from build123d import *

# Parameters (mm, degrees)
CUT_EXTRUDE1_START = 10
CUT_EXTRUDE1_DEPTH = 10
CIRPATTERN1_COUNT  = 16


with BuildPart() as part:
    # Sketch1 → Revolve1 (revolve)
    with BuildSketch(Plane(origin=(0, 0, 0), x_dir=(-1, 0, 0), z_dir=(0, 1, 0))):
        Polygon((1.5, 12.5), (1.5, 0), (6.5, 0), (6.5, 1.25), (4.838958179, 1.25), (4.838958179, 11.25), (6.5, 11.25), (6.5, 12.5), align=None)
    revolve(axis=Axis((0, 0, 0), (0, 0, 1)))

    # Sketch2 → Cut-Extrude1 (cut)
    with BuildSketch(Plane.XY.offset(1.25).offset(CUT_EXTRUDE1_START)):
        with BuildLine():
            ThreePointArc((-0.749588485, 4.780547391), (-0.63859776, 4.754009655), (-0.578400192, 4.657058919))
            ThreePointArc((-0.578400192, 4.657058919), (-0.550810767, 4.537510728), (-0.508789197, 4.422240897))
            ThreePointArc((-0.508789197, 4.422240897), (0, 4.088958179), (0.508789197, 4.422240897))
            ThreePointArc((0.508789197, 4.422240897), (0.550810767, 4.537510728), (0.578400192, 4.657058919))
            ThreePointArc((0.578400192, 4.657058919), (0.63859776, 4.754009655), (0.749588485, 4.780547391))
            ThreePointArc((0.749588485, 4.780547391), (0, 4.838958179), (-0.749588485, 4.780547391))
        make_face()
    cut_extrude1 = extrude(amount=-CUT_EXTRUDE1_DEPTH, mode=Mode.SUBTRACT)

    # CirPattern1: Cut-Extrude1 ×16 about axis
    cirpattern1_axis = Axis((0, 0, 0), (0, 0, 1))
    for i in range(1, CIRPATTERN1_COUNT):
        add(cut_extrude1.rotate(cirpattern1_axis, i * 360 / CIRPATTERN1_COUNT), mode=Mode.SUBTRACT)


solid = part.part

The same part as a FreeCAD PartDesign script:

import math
import FreeCAD as App
import Part
import Sketcher

V = App.Vector
Q = App.Units.Quantity


def add_polygon(sketch, points):
    """Adds a closed chain of lines whose ends are joined by coincident constraints."""
    first, n = sketch.GeometryCount, len(points)
    for a, b in zip(points, points[1:] + points[:1]):
        sketch.addGeometry(Part.LineSegment(App.Vector(*a, 0), App.Vector(*b, 0)), False)
    for i in range(n):
        sketch.addConstraint(Sketcher.Constraint("Coincident", first + i, 2, first + (i + 1) % n, 1))

doc = App.newDocument("Part")
body = doc.addObject("PartDesign::Body", "Body")

# Sketch on XZ plane
sketch1 = doc.addObject("Sketcher::SketchObject", "Sketch")
body.addObject(sketch1)
sketch1.AttachmentSupport = (doc.XZ_Plane, [""])
sketch1.MapMode = "FlatFace"
add_polygon(sketch1, [(-1.5, 12.5), (-1.5, 0), (-6.5, 0), (-6.5, 1.2), (-4.8, 1.2), (-4.8, 11.2), (-6.5, 11.2), (-6.5, 12.5)])  # lines 0-7
sketch1.addConstraint(Sketcher.Constraint("Vertical", 0))
sketch1.addConstraint(Sketcher.Constraint("Horizontal", 1))
sketch1.addConstraint(Sketcher.Constraint("Vertical", 2))
sketch1.addConstraint(Sketcher.Constraint("Horizontal", 3))
sketch1.addConstraint(Sketcher.Constraint("Vertical", 4))
sketch1.addConstraint(Sketcher.Constraint("Horizontal", 5))
sketch1.addConstraint(Sketcher.Constraint("Vertical", 6))
sketch1.addConstraint(Sketcher.Constraint("Horizontal", 7))
sketch1.addConstraint(Sketcher.Constraint("PointOnObject", 0, 2, -1))
sketch1.addConstraint(Sketcher.Constraint("Vertical", 2, 2, 5, 2))
sketch1.addConstraint(Sketcher.Constraint("Equal", 2, 6))
sketch1.addConstraint(Sketcher.Constraint("DistanceX", 1, 2, 1, 1, Q("5 mm")))
sketch1.addConstraint(Sketcher.Constraint("DistanceY", 4, 1, 4, 2, Q("10 mm")))
sketch1.addConstraint(Sketcher.Constraint("DistanceY", 0, 2, 0, 1, Q("12.5 mm")))
sketch1.addConstraint(Sketcher.Constraint("DistanceX", 0, 2, -1, 1, Q("1.5 mm")))
sketch1.addConstraint(Sketcher.Constraint("DistanceX", 3, 1, 3, 2, Q("1.661042 mm")))
revolution = doc.addObject("PartDesign::Revolution", "Revolution")
body.addObject(revolution)
revolution.Profile = sketch1
revolution.ReferenceAxis = (sketch1, ["V_Axis"])
revolution.Angle = 360

# Sketch on XY plane
sketch2 = doc.addObject("Sketcher::SketchObject", "Sketch001")
body.addObject(sketch2)
sketch2.AttachmentSupport = (doc.XY_Plane, [""])
sketch2.MapMode = "FlatFace"
sketch2.AttachmentOffset = App.Placement(V(0, 0, 11.25), App.Rotation())
sketch2.addGeometry(Part.ArcOfCircle(Part.Circle(V(-0.73, 4.63, 0), V(0, 0, 1), 0.15), math.radians(9), math.radians(99)), False)
sketch2.addGeometry(Part.ArcOfCircle(Part.Circle(V(0.41, 4.82, 0), V(0, 0, 1), 1), math.radians(-170.52), math.radians(-156.45)), False)
sketch2.addGeometry(Part.ArcOfCircle(Part.Circle(V(0, 4.64, 0), V(0, 0, 1), 0.56), math.radians(-156), math.radians(-24)), False)
sketch2.addGeometry(Part.ArcOfCircle(Part.Circle(V(-0.41, 4.82, 0), V(0, 0, 1), 1), math.radians(-23.55), math.radians(-9.48)), False)
sketch2.addGeometry(Part.ArcOfCircle(Part.Circle(V(0.73, 4.63, 0), V(0, 0, 1), 0.15), math.radians(81), math.radians(171)), False)
sketch2.addGeometry(Part.ArcOfCircle(Part.Circle(V(0, 0, 0), V(0, 0, 1), 4.84), math.radians(81.09), math.radians(98.91)), False)
sketch2.addConstraint(Sketcher.Constraint("Tangent", 0, 1, 1, 1))
sketch2.addConstraint(Sketcher.Constraint("Tangent", 1, 2, 2, 1))
sketch2.addConstraint(Sketcher.Constraint("Tangent", 2, 2, 3, 1))
sketch2.addConstraint(Sketcher.Constraint("Tangent", 3, 2, 4, 2))
sketch2.addConstraint(Sketcher.Constraint("Tangent", 4, 1, 5, 1))
sketch2.addConstraint(Sketcher.Constraint("Tangent", 5, 2, 0, 2))
sketch2.addConstraint(Sketcher.Constraint("Coincident", 5, 3, -1, 1))
sketch2.addConstraint(Sketcher.Constraint("Equal", 1, 3))
sketch2.addConstraint(Sketcher.Constraint("Equal", 0, 4))
sketch2.addConstraint(Sketcher.Constraint("Symmetric", 1, 3, 3, 3, -2))
sketch2.addConstraint(Sketcher.Constraint("Radius", 1, Q("1 mm")))
sketch2.addConstraint(Sketcher.Constraint("Radius", 0, Q("0.15 mm")))
sketch2.addConstraint(Sketcher.Constraint("Radius", 2, Q("0.555 mm")))
sketch2.addConstraint(Sketcher.Constraint("Radius", 5, Q("4.838958 mm")))
sketch2.addConstraint(Sketcher.Constraint("DistanceX", 0, 1, -1, 1, Q("0.5784 mm")))
sketch2.addConstraint(Sketcher.Constraint("DistanceX", 0, 3, 1, 3, Q("1.134301 mm")))
pocket1 = doc.addObject("PartDesign::Pocket", "Pocket")
body.addObject(pocket1)
pocket1.Profile = sketch2
pocket1.Length = 10
doc.recompute()

polarpattern = doc.addObject("PartDesign::PolarPattern", "PolarPattern")
body.addObject(polarpattern)
polarpattern.Originals = [pocket1]
polarpattern.Axis = (doc.Z_Axis, [""])
polarpattern.Angle = 360
polarpattern.Occurrences = 16
body.Tip = polarpattern

doc.recompute()
